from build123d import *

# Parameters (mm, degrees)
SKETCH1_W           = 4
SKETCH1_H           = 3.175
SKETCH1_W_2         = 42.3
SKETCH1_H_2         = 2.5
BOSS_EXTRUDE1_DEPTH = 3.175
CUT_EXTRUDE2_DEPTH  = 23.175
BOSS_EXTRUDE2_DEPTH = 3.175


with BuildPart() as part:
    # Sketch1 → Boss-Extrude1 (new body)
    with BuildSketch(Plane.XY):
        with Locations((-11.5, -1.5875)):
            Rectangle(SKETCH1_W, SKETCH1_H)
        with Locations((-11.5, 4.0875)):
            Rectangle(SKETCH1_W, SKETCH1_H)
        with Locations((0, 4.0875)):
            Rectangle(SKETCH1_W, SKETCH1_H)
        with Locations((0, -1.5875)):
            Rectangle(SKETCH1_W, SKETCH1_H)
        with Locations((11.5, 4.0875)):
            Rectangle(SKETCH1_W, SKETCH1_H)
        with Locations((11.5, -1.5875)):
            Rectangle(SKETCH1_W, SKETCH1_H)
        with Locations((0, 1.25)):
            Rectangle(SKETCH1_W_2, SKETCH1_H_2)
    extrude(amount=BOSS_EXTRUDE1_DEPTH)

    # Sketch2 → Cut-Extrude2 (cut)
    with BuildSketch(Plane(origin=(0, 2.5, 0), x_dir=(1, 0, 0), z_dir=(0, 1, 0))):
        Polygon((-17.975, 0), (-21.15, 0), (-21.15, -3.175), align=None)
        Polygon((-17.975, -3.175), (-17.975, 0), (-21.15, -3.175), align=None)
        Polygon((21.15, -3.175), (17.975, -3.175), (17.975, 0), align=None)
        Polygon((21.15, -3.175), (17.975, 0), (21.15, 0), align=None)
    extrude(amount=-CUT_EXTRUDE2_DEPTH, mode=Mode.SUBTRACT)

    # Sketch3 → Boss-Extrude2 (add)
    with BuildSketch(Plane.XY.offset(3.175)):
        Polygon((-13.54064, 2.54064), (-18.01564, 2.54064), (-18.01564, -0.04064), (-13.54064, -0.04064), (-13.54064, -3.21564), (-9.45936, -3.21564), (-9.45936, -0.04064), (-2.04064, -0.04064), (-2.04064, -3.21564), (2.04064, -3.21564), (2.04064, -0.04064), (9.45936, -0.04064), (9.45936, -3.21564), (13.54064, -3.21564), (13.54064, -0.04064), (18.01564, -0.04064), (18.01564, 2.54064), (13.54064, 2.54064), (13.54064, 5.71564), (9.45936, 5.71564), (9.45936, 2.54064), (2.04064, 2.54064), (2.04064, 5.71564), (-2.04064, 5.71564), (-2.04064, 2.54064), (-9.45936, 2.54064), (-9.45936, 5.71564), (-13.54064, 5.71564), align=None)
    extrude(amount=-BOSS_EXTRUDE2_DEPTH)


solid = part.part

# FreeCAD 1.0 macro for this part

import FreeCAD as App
import Part
import Sketcher
Q = App.Units.Quantity


def add_polygon(sketch, points):
    """Adds a closed chain of lines whose ends are joined by coincident constraints."""
    first, n = sketch.GeometryCount, len(points)
    for a, b in zip(points, points[1:] + points[:1]):
        sketch.addGeometry(Part.LineSegment(App.Vector(*a, 0), App.Vector(*b, 0)), False)
    for i in range(n):
        sketch.addConstraint(Sketcher.Constraint("Coincident", first + i, 2, first + (i + 1) % n, 1))

doc = App.newDocument("Part")
body = doc.addObject("PartDesign::Body", "Body")

# Sketch on XY plane
sketch1 = body.newObject("Sketcher::SketchObject", "Sketch")
sketch1.AttachmentSupport = (doc.getObject("XY_Plane"), [""])
sketch1.MapMode = "FlatFace"
add_polygon(sketch1, [(-13.5, 0), (-13.5, -3.2), (-9.5, -3.2), (-9.5, 0), (-2, 0), (-2, -3.2), (2, -3.2), (2, 0), (9.5, 0), (9.5, -3.2), (13.5, -3.2), (13.5, 0), (21.1, 0), (21.1, 2.5), (13.5, 2.5), (13.5, 5.7), (9.5, 5.7), (9.5, 2.5), (2, 2.5), (2, 5.7), (-2, 5.7), (-2, 2.5), (-9.5, 2.5), (-9.5, 5.7), (-13.5, 5.7), (-13.5, 2.5), (-21.1, 2.5), (-21.1, 0)])  # lines 0-27
sketch1.addConstraint(Sketcher.Constraint("Vertical", 0))
sketch1.addConstraint(Sketcher.Constraint("Horizontal", 1))
sketch1.addConstraint(Sketcher.Constraint("Vertical", 2))
sketch1.addConstraint(Sketcher.Constraint("Horizontal", 3))
sketch1.addConstraint(Sketcher.Constraint("Vertical", 4))
sketch1.addConstraint(Sketcher.Constraint("Horizontal", 5))
sketch1.addConstraint(Sketcher.Constraint("Vertical", 6))
sketch1.addConstraint(Sketcher.Constraint("Horizontal", 7))
sketch1.addConstraint(Sketcher.Constraint("Vertical", 8))
sketch1.addConstraint(Sketcher.Constraint("Horizontal", 9))
sketch1.addConstraint(Sketcher.Constraint("Vertical", 10))
sketch1.addConstraint(Sketcher.Constraint("Horizontal", 11))
sketch1.addConstraint(Sketcher.Constraint("Vertical", 12))
sketch1.addConstraint(Sketcher.Constraint("Horizontal", 13))
sketch1.addConstraint(Sketcher.Constraint("Vertical", 14))
sketch1.addConstraint(Sketcher.Constraint("Horizontal", 15))
sketch1.addConstraint(Sketcher.Constraint("Vertical", 16))
sketch1.addConstraint(Sketcher.Constraint("Horizontal", 17))
sketch1.addConstraint(Sketcher.Constraint("Vertical", 18))
sketch1.addConstraint(Sketcher.Constraint("Horizontal", 19))
sketch1.addConstraint(Sketcher.Constraint("Vertical", 20))
sketch1.addConstraint(Sketcher.Constraint("Horizontal", 21))
sketch1.addConstraint(Sketcher.Constraint("Vertical", 22))
sketch1.addConstraint(Sketcher.Constraint("Horizontal", 23))
sketch1.addConstraint(Sketcher.Constraint("Vertical", 24))
sketch1.addConstraint(Sketcher.Constraint("Horizontal", 25))
sketch1.addConstraint(Sketcher.Constraint("Vertical", 26))
sketch1.addConstraint(Sketcher.Constraint("Horizontal", 27))
sketch1.addConstraint(Sketcher.Constraint("Symmetric", 3, 2, 6, 2, -1, 1))
sketch1.addConstraint(Sketcher.Constraint("Symmetric", 11, 2, 26, 2, -1, 1))
sketch1.addConstraint(Sketcher.Constraint("Symmetric", 2, 2, 7, 2, -2))
sketch1.addConstraint(Sketcher.Constraint("Symmetric", 0, 2, 9, 2, -2))
sketch1.addConstraint(Sketcher.Constraint("Symmetric", 17, 2, 20, 2, -2))
sketch1.addConstraint(Sketcher.Constraint("Symmetric", 15, 2, 22, 2, -2))
sketch1.addConstraint(Sketcher.Constraint("Symmetric", 13, 2, 24, 2, -2))
sketch1.addConstraint(Sketcher.Constraint("PointOnObject", 10, 2, -1))
sketch1.addConstraint(Sketcher.Constraint("Horizontal", 1, 2, 4, 2))
sketch1.addConstraint(Sketcher.Constraint("Horizontal", 13, 2, 16, 2))
sketch1.addConstraint(Sketcher.Constraint("Horizontal", 15, 2, 18, 2))
sketch1.addConstraint(Sketcher.Constraint("Vertical", 10, 2, 13, 2))
sketch1.addConstraint(Sketcher.Constraint("Vertical", 8, 2, 15, 2))
sketch1.addConstraint(Sketcher.Constraint("Vertical", 6, 2, 17, 2))
sketch1.addConstraint(Sketcher.Constraint("Equal", 1, 5))
sketch1.addConstraint(Sketcher.Constraint("Equal", 10, 14))
sketch1.addConstraint(Sketcher.Constraint("DistanceX", 1, 1, 1, 2, Q("4 mm")))
sketch1.addConstraint(Sketcher.Constraint("DistanceX", 3, 1, 3, 2, Q("7.5 mm")))
sketch1.addConstraint(Sketcher.Constraint("DistanceY", 12, 1, 12, 2, Q("2.5 mm")))
sketch1.addConstraint(Sketcher.Constraint("DistanceX", 11, 1, 11, 2, Q("7.65 mm")))
sketch1.addConstraint(Sketcher.Constraint("DistanceY", 0, 2, 0, 1, Q("3.175 mm")))
pad1 = body.newObject("PartDesign::Pad", "Pad")
pad1.Profile = sketch1
pad1.Length = 3.175

# Sketch on XZ plane
sketch2 = body.newObject("Sketcher::SketchObject", "Sketch001")
sketch2.AttachmentSupport = (doc.getObject("XZ_Plane"), [""])
sketch2.MapMode = "FlatFace"
sketch2.AttachmentOffset = App.Placement(App.Vector(0, 0, -2.5), App.Rotation())
add_polygon(sketch2, [(-18, 0), (-21.1, 0), (-21.1, 3.2), (-18, 3.2)])  # lines 0-3
add_polygon(sketch2, [(18, 3.2), (21.1, 3.2), (21.1, 0), (18, 0)])  # lines 4-7
sketch2.addConstraint(Sketcher.Constraint("Horizontal", 0))
sketch2.addConstraint(Sketcher.Constraint("Vertical", 1))
sketch2.addConstraint(Sketcher.Constraint("Horizontal", 2))
sketch2.addConstraint(Sketcher.Constraint("Vertical", 3))
sketch2.addConstraint(Sketcher.Constraint("Horizontal", 4))
sketch2.addConstraint(Sketcher.Constraint("Vertical", 5))
sketch2.addConstraint(Sketcher.Constraint("Horizontal", 6))
sketch2.addConstraint(Sketcher.Constraint("Vertical", 7))
sketch2.addConstraint(Sketcher.Constraint("Symmetric", 0, 2, 5, 2, -1, 1))
sketch2.addConstraint(Sketcher.Constraint("Symmetric", 3, 2, 6, 2, -2))
sketch2.addConstraint(Sketcher.Constraint("Horizontal", 2, 2, 4, 2))
sketch2.addConstraint(Sketcher.Constraint("Equal", 6, 1))
sketch2.addConstraint(Sketcher.Constraint("DistanceX", 1, 2, 4, 2, Q("42.3 mm")))
sketch2.addConstraint(Sketcher.Constraint("DistanceX", 0, 2, 0, 1, Q("3.175 mm")))
pocket1 = body.newObject("PartDesign::Pocket", "Pocket")
pocket1.Profile = sketch2
pocket1.Length = 23.175
pocket1.Reversed = True

# Sketch on XY plane
sketch3 = body.newObject("Sketcher::SketchObject", "Sketch002")
sketch3.AttachmentSupport = (doc.getObject("XY_Plane"), [""])
sketch3.MapMode = "FlatFace"
sketch3.AttachmentOffset = App.Placement(App.Vector(0, 0, 3.175), App.Rotation())
add_polygon(sketch3, [(-13.5, 2.5), (-18, 2.5), (-18, 0), (-13.5, 0), (-13.5, -3.2), (-9.5, -3.2), (-9.5, 0), (-2, 0), (-2, -3.2), (2, -3.2), (2, 0), (9.5, 0), (9.5, -3.2), (13.5, -3.2), (13.5, 0), (18, 0), (18, 2.5), (13.5, 2.5), (13.5, 5.7), (9.5, 5.7), (9.5, 2.5), (2, 2.5), (2, 5.7), (-2, 5.7), (-2, 2.5), (-9.5, 2.5), (-9.5, 5.7), (-13.5, 5.7)])  # lines 0-27
sketch3.addConstraint(Sketcher.Constraint("Horizontal", 0))
sketch3.addConstraint(Sketcher.Constraint("Vertical", 1))
sketch3.addConstraint(Sketcher.Constraint("Horizontal", 2))
sketch3.addConstraint(Sketcher.Constraint("Vertical", 3))
sketch3.addConstraint(Sketcher.Constraint("Horizontal", 4))
sketch3.addConstraint(Sketcher.Constraint("Vertical", 5))
sketch3.addConstraint(Sketcher.Constraint("Horizontal", 6))
sketch3.addConstraint(Sketcher.Constraint("Vertical", 7))
sketch3.addConstraint(Sketcher.Constraint("Horizontal", 8))
sketch3.addConstraint(Sketcher.Constraint("Vertical", 9))
sketch3.addConstraint(Sketcher.Constraint("Horizontal", 10))
sketch3.addConstraint(Sketcher.Constraint("Vertical", 11))
sketch3.addConstraint(Sketcher.Constraint("Horizontal", 12))
sketch3.addConstraint(Sketcher.Constraint("Vertical", 13))
sketch3.addConstraint(Sketcher.Constraint("Horizontal", 14))
sketch3.addConstraint(Sketcher.Constraint("Vertical", 15))
sketch3.addConstraint(Sketcher.Constraint("Horizontal", 16))
sketch3.addConstraint(Sketcher.Constraint("Vertical", 17))
sketch3.addConstraint(Sketcher.Constraint("Horizontal", 18))
sketch3.addConstraint(Sketcher.Constraint("Vertical", 19))
sketch3.addConstraint(Sketcher.Constraint("Horizontal", 20))
sketch3.addConstraint(Sketcher.Constraint("Vertical", 21))
sketch3.addConstraint(Sketcher.Constraint("Horizontal", 22))
sketch3.addConstraint(Sketcher.Constraint("Vertical", 23))
sketch3.addConstraint(Sketcher.Constraint("Horizontal", 24))
sketch3.addConstraint(Sketcher.Constraint("Vertical", 25))
sketch3.addConstraint(Sketcher.Constraint("Horizontal", 26))
sketch3.addConstraint(Sketcher.Constraint("Vertical", 27))
sketch3.addConstraint(Sketcher.Constraint("Symmetric", 6, 2, 9, 2, -2))
sketch3.addConstraint(Sketcher.Constraint("Symmetric", 4, 2, 11, 2, -2))
sketch3.addConstraint(Sketcher.Constraint("Symmetric", 2, 2, 13, 2, -2))
sketch3.addConstraint(Sketcher.Constraint("Symmetric", 0, 2, 15, 2, -2))
sketch3.addConstraint(Sketcher.Constraint("Symmetric", 20, 2, 23, 2, -2))
sketch3.addConstraint(Sketcher.Constraint("Symmetric", 18, 2, 25, 2, -2))
sketch3.addConstraint(Sketcher.Constraint("Horizontal", 2, 2, 5, 2))
sketch3.addConstraint(Sketcher.Constraint("Horizontal", 4, 2, 7, 2))
sketch3.addConstraint(Sketcher.Constraint("Horizontal", 16, 2, 19, 2))
sketch3.addConstraint(Sketcher.Constraint("Horizontal", 18, 2, 21, 2))
sketch3.addConstraint(Sketcher.Constraint("Vertical", 13, 2, 16, 2))
sketch3.addConstraint(Sketcher.Constraint("Vertical", 11, 2, 18, 2))
sketch3.addConstraint(Sketcher.Constraint("Vertical", 9, 2, 20, 2))
sketch3.addConstraint(Sketcher.Constraint("Vertical", 3, 2, 26, 2))
sketch3.addConstraint(Sketcher.Constraint("Equal", 4, 8))
sketch3.addConstraint(Sketcher.Constraint("Equal", 13, 17))
sketch3.addConstraint(Sketcher.Constraint("DistanceX", 2, 2, 6, 2, Q("11.5 mm")))
sketch3.addConstraint(Sketcher.Constraint("DistanceX", 0, 2, 0, 1, Q("4.475 mm")))
sketch3.addConstraint(Sketcher.Constraint("DistanceY", 3, 2, 3, 1, Q("3.175 mm")))
sketch3.addConstraint(Sketcher.Constraint("DistanceX", 4, 1, 4, 2, Q("4.08128 mm")))
sketch3.addConstraint(Sketcher.Constraint("DistanceY", 1, 2, 1, 1, Q("2.58128 mm")))
sketch3.addConstraint(Sketcher.Constraint("DistanceY", -1, 1, 0, 2, Q("2.54064 mm")))
pad2 = body.newObject("PartDesign::Pad", "Pad001")
pad2.Profile = sketch3
pad2.Length = 3.175
pad2.Reversed = True

doc.recompute()
